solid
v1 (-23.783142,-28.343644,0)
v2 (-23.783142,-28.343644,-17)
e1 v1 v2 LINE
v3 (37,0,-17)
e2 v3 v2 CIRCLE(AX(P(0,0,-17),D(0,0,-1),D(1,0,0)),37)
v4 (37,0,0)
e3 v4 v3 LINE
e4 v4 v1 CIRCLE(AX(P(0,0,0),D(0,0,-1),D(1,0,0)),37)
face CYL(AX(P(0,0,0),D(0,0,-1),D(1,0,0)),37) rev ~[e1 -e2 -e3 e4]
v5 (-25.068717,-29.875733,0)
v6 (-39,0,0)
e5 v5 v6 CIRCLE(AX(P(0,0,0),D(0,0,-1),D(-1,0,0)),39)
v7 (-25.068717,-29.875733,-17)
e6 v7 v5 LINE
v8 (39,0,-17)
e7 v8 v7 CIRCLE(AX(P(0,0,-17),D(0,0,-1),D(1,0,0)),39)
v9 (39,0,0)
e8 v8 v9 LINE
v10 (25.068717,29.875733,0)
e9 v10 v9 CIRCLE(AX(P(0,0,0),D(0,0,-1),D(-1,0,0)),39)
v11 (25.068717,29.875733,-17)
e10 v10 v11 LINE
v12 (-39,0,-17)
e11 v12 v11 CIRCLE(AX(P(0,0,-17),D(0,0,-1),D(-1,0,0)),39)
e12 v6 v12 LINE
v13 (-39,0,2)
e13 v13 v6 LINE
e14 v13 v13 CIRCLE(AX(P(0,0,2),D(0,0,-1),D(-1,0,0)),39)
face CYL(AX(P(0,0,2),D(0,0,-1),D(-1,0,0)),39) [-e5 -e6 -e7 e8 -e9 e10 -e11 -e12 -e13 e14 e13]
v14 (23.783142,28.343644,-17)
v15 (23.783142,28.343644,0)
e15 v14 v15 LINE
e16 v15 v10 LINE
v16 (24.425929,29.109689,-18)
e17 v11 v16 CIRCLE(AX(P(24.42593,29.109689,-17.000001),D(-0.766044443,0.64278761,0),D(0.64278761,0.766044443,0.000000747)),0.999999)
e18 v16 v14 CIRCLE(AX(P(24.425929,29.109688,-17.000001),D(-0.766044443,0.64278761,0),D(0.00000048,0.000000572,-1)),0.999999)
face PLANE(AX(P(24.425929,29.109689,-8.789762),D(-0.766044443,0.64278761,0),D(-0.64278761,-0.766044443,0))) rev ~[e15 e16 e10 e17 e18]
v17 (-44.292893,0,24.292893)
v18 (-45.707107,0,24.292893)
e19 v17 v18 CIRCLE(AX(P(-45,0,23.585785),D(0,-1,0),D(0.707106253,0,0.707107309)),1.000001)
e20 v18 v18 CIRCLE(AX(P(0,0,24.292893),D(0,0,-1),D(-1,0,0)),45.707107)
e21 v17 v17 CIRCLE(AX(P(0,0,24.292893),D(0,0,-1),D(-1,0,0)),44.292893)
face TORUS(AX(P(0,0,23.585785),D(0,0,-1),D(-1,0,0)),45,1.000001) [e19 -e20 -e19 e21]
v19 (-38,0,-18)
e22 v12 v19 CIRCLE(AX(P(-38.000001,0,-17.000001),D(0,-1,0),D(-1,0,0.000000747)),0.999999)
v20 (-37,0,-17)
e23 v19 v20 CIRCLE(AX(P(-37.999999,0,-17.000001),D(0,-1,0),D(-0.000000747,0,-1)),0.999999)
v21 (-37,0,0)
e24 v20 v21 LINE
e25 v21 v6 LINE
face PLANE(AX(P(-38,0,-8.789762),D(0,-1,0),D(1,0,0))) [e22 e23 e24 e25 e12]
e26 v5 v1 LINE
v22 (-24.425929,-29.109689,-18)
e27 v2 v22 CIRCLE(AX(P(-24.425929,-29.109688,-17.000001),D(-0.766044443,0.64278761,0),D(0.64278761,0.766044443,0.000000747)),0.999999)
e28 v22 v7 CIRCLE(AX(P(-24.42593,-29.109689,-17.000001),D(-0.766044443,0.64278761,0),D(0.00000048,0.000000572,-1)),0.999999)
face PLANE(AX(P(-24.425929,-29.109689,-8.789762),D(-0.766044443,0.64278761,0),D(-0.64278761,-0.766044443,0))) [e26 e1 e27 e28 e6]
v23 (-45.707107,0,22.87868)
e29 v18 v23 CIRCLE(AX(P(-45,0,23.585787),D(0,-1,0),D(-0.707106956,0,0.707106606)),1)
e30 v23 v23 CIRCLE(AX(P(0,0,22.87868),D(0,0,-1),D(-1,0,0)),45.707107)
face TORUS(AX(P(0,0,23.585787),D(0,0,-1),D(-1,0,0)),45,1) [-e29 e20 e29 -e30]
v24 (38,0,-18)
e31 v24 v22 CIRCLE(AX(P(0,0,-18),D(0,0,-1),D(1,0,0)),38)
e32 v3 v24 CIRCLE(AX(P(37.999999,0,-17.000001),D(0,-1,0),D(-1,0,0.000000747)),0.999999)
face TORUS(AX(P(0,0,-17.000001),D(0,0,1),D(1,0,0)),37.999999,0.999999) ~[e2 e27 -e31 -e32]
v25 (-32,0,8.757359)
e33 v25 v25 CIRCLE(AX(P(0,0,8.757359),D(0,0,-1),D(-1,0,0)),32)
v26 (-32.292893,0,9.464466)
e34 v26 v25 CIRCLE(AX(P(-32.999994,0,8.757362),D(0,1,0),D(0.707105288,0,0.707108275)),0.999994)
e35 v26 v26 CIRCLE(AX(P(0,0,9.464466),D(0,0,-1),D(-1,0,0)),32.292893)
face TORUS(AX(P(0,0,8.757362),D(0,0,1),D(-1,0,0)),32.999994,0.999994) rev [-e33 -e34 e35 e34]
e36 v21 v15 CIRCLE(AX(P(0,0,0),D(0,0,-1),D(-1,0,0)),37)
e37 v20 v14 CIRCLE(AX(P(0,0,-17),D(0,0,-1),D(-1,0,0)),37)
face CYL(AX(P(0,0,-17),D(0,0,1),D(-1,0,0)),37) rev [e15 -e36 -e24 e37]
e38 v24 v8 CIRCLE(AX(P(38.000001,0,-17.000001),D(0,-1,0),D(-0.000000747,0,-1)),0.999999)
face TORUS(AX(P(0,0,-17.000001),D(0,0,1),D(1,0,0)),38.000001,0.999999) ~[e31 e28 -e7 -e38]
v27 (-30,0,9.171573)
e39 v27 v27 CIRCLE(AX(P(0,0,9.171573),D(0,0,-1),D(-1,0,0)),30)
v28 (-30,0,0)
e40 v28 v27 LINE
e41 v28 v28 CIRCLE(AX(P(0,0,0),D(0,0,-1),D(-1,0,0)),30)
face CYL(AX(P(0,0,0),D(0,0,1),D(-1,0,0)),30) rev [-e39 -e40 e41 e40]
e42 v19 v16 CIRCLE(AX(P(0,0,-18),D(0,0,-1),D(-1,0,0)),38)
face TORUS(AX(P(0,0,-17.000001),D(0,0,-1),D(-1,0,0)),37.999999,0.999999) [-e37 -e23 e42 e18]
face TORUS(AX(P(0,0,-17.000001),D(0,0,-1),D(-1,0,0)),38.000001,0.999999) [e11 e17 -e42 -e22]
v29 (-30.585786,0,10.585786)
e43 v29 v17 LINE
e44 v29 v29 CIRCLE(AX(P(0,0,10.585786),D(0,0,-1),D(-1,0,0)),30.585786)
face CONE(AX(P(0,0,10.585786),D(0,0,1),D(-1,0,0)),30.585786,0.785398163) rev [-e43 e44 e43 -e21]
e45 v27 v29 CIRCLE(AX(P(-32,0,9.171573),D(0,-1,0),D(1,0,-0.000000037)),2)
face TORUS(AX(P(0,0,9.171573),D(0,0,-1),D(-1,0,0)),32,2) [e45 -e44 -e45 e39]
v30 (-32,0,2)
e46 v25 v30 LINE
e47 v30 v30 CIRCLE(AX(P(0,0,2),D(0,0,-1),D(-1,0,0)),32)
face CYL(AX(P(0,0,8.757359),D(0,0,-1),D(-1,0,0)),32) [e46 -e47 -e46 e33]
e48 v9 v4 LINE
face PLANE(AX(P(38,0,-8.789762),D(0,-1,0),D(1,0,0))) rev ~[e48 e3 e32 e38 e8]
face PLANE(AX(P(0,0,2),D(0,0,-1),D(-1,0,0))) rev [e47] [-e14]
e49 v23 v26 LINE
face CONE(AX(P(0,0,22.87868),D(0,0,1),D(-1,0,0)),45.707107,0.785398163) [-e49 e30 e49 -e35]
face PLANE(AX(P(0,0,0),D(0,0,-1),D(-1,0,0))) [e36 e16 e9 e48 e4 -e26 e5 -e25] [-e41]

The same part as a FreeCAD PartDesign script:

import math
import FreeCAD as App
import Part
import Sketcher
Q = App.Units.Quantity

doc = App.newDocument("Part")
body = doc.addObject("PartDesign::Body", "Body")

# Sketch on XZ plane
sketch1 = body.newObject("Sketcher::SketchObject", "Sketch")
sketch1.AttachmentSupport = (doc.getObject("XZ_Plane"), [""])
sketch1.MapMode = "FlatFace"
sketch1.addGeometry([
    Part.LineSegment(App.Vector(-39, 0, 0), App.Vector(-30, 0, 0)),  # 0
    Part.LineSegment(App.Vector(-30, 0, 0), App.Vector(-30, 9.2, 0)),  # 1
    Part.ArcOfCircle(Part.Circle(App.Vector(-32, 9.2, 0), App.Vector(0, 0, 1), 2), math.radians(0), math.radians(45)),  # 2
    Part.LineSegment(App.Vector(-30.6, 10.6, 0), App.Vector(-44.3, 24.3, 0)),  # 3
    Part.ArcOfCircle(Part.Circle(App.Vector(-45, 23.6, 0), App.Vector(0, 0, 1), 1), math.radians(45), math.radians(135)),  # 4
    Part.ArcOfCircle(Part.Circle(App.Vector(-45, 23.6, 0), App.Vector(0, 0, 1), 1), math.radians(135), math.radians(225)),  # 5
    Part.LineSegment(App.Vector(-45.7, 22.9, 0), App.Vector(-32.3, 9.5, 0)),  # 6
    Part.ArcOfCircle(Part.Circle(App.Vector(-33, 8.8, 0), App.Vector(0, 0, 1), 1), math.radians(0), math.radians(45)),  # 7
    Part.LineSegment(App.Vector(-32, 8.8, 0), App.Vector(-32, 2, 0)),  # 8
    Part.LineSegment(App.Vector(-32, 2, 0), App.Vector(-39, 2, 0)),  # 9
    Part.LineSegment(App.Vector(-39, 2, 0), App.Vector(-39, 0, 0)),  # 10
], False)
sketch1.addConstraint([
    Sketcher.Constraint("Coincident", 0, 2, 1, 1),
    Sketcher.Constraint("Tangent", 1, 2, 2, 1),
    Sketcher.Constraint("Tangent", 2, 2, 3, 1),
    Sketcher.Constraint("Tangent", 3, 2, 4, 1),
    Sketcher.Constraint("Tangent", 4, 2, 5, 1),
    Sketcher.Constraint("Tangent", 5, 2, 6, 1),
    Sketcher.Constraint("Coincident", 6, 2, 7, 2),
    Sketcher.Constraint("Coincident", 7, 1, 8, 1),
    Sketcher.Constraint("Coincident", 8, 2, 9, 1),
    Sketcher.Constraint("Coincident", 9, 2, 10, 1),
    Sketcher.Constraint("Coincident", 10, 2, 0, 1),
    Sketcher.Constraint("Horizontal", 0),
    Sketcher.Constraint("Vertical", 1),
    Sketcher.Constraint("Vertical", 8),
    Sketcher.Constraint("Horizontal", 9),
    Sketcher.Constraint("Vertical", 10),
    Sketcher.Constraint("Equal", 4, 5),
    Sketcher.Constraint("PointOnObject", 0, 2, -1),
    Sketcher.Constraint("Parallel", 3, 6),
    Sketcher.Constraint("Horizontal", 3, 2, 4, 2),
    Sketcher.Constraint("Vertical", 2, 3, 7, 1),
    Sketcher.Constraint("Radius", 2, 2.0),
    Sketcher.Constraint("Radius", 4, 1.000001),
    Sketcher.Constraint("DistanceX", 0, 1, 0, 2, 9.0),
    Sketcher.Constraint("DistanceY", 10, 2, 10, 1, 2.0),
    Sketcher.Constraint("Angle", 3, Q("135 deg")),
    Sketcher.Constraint("DistanceX", 2, 3, -1, 1, 32.0),
    Sketcher.Constraint("DistanceX", 4, 3, -1, 1, 45.0),
    Sketcher.Constraint("Radius", 7, 0.999994),
    Sketcher.Constraint("DistanceY", 8, 2, 8, 1, 6.757359),
    Sketcher.Constraint("DistanceX", 7, 3, 6, 2, 0.707101),
    Sketcher.Constraint("DistanceY", 1, 1, 1, 2, 9.171573),
])
revolution = body.newObject("PartDesign::Revolution", "Revolution")
revolution.Profile = sketch1
revolution.ReferenceAxis = (sketch1, ["V_Axis"])
revolution.Angle = 360

# Sketch on XZ plane
sketch2 = body.newObject("Sketcher::SketchObject", "Sketch001")
sketch2.AttachmentSupport = (doc.getObject("XZ_Plane"), [""])
sketch2.MapMode = "FlatFace"
sketch2.addGeometry([
    Part.LineSegment(App.Vector(-37, -17, 0), App.Vector(-37, 0, 0)),  # 0
    Part.LineSegment(App.Vector(-37, 0, 0), App.Vector(-39, 0, 0)),  # 1
    Part.LineSegment(App.Vector(-39, 0, 0), App.Vector(-39, -17, 0)),  # 2
    Part.ArcOfCircle(Part.Circle(App.Vector(-38, -17, 0), App.Vector(0, 0, 1), 1), math.radians(180), math.radians(270)),  # 3
    Part.ArcOfCircle(Part.Circle(App.Vector(-38, -17, 0), App.Vector(0, 0, 1), 1), math.radians(-90), math.radians(0)),  # 4
    Part.LineSegment(App.Vector(39, 0, 0), App.Vector(37, 0, 0)),  # 5
    Part.LineSegment(App.Vector(37, 0, 0), App.Vector(37, -17, 0)),  # 6
    Part.ArcOfCircle(Part.Circle(App.Vector(38, -17, 0), App.Vector(0, 0, 1), 1), math.radians(180), math.radians(270)),  # 7
    Part.ArcOfCircle(Part.Circle(App.Vector(38, -17, 0), App.Vector(0, 0, 1), 1), math.radians(-90), math.radians(0)),  # 8
    Part.LineSegment(App.Vector(39, -17, 0), App.Vector(39, 0, 0)),  # 9
], False)
sketch2.addConstraint([
    Sketcher.Constraint("Coincident", 0, 2, 1, 1),
    Sketcher.Constraint("Coincident", 1, 2, 2, 1),
    Sketcher.Constraint("Tangent", 2, 2, 3, 1),
    Sketcher.Constraint("Tangent", 3, 2, 4, 1),
    Sketcher.Constraint("Tangent", 4, 2, 0, 1),
    Sketcher.Constraint("Coincident", 5, 2, 6, 1),
    Sketcher.Constraint("Tangent", 6, 2, 7, 1),
    Sketcher.Constraint("Tangent", 7, 2, 8, 1),
    Sketcher.Constraint("Tangent", 8, 2, 9, 1),
    Sketcher.Constraint("Coincident", 9, 2, 5, 1),
    Sketcher.Constraint("Vertical", 0),
    Sketcher.Constraint("Horizontal", 1),
    Sketcher.Constraint("Vertical", 2),
    Sketcher.Constraint("Horizontal", 5),
    Sketcher.Constraint("Vertical", 6),
    Sketcher.Constraint("Vertical", 9),
    Sketcher.Constraint("Equal", 3, 4),
    Sketcher.Constraint("Equal", 4, 7),
    Sketcher.Constraint("Equal", 7, 8),
    Sketcher.Constraint("Symmetric", 0, 2, 5, 2, -1, 1),
    Sketcher.Constraint("Symmetric", 3, 2, 7, 2, -2),
    Sketcher.Constraint("PointOnObject", 0, 2, -1),
    Sketcher.Constraint("Vertical", 4, 3, 3, 2),
    Sketcher.Constraint("Radius", 3, 0.999999),
    Sketcher.Constraint("DistanceY", 0, 1, 0, 2, 17.0),
    Sketcher.Constraint("DistanceX", 3, 3, -1, 1, 38.000001),
])
revolution2 = body.newObject("PartDesign::Revolution", "Revolution001")
revolution2.Profile = sketch2
revolution2.ReferenceAxis = (sketch2, ["V_Axis"])
revolution2.Angle = 130
revolution2.Reversed = True

doc.recompute()
